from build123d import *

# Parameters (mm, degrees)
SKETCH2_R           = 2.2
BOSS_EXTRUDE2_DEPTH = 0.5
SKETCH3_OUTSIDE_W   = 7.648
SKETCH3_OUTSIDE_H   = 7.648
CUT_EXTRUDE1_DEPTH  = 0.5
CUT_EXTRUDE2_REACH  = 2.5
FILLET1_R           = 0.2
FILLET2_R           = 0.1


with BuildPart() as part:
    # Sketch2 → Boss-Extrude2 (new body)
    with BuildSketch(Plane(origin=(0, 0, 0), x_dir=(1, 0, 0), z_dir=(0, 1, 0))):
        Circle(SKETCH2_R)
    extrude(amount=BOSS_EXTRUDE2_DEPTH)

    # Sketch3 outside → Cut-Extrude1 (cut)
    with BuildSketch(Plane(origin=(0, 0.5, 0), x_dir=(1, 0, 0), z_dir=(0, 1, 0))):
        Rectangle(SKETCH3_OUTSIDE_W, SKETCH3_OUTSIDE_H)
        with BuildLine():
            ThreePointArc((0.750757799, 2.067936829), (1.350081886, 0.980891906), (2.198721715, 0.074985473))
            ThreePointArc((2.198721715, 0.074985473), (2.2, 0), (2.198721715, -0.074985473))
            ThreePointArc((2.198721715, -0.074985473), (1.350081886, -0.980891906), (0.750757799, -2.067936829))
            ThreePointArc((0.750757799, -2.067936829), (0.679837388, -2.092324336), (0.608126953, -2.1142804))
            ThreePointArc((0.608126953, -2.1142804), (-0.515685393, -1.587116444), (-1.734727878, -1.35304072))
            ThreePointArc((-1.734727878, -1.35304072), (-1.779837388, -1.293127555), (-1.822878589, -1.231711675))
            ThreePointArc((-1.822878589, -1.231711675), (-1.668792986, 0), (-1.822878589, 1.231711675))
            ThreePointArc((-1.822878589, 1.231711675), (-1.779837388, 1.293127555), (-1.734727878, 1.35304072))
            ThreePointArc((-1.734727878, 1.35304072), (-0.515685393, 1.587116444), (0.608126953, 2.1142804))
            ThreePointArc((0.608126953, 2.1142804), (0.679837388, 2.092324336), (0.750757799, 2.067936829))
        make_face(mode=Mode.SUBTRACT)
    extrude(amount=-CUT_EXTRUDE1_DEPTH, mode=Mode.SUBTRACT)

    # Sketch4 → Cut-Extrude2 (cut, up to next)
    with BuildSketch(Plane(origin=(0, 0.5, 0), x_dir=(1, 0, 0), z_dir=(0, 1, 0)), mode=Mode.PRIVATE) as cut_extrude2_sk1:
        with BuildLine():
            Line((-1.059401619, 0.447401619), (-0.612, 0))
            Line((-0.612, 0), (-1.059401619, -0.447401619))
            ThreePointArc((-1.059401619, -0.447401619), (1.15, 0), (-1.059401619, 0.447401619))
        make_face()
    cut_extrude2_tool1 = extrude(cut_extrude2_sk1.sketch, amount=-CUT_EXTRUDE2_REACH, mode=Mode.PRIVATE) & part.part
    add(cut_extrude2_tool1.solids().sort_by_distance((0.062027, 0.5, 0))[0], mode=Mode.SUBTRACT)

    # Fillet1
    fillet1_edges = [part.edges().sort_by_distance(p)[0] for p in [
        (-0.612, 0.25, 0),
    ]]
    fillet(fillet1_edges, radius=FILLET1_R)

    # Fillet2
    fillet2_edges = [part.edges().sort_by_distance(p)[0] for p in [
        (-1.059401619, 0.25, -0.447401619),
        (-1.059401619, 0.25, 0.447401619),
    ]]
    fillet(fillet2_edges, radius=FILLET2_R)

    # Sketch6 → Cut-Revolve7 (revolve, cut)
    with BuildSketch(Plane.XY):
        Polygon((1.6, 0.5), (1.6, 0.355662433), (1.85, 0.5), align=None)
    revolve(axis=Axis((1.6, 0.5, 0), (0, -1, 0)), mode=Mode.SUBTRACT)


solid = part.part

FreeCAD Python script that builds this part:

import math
import FreeCAD as App
import Part
import Sketcher
from FreeCAD import Vector
Q = App.Units.Quantity


def edges_at(feature, points):
    """Names of the edges that pass closest to the given points."""
    edges = feature.Shape.Edges
    near = lambda p: min(range(len(edges)), key=lambda i: edges[i].distToShape(Part.Vertex(*p))[0])
    return sorted({f"Edge{near(p) + 1}" for p in points})

doc = App.newDocument("Part")
params = doc.addObject("Spreadsheet::Sheet", "Params")
for row, (alias, value) in enumerate([
    ("sketch1_diameter", "4.4 mm"),
    ("pad1_length", "0.5 mm"),
    ("sketch2_radius", "5 mm"),
    ("sketch2_radius2", "2.2 mm"),
    ("pocket1_length", "0.5 mm"),
    ("sketch3_radius", "1.15 mm"),
    ("fillet_radius", "0.2 mm"),
    ("fillet2_radius", "0.1 mm"),
    ("sketch4_width", "0.25 mm"),
    ("groove_angle", "360 deg"),
], start=1):
    params.set(f"A{row}", alias)
    params.set(f"B{row}", "=" + value)
    params.setAlias(f"B{row}", alias)

body = doc.addObject("PartDesign::Body", "Body")

# Sketch on XZ plane
sketch1 = doc.addObject("Sketcher::SketchObject", "Sketch")
body.addObject(sketch1)
sketch1.AttachmentSupport = (doc.XZ_Plane, [""])
sketch1.MapMode = "FlatFace"
sketch1.addGeometry(Part.Circle(Vector(0, 0, 0), Vector(0, 0, 1), 2.2), False)
sketch1.addConstraint(Sketcher.Constraint("Coincident", 0, 3, -1, 1))
sketch1.addConstraint(Sketcher.Constraint("Diameter", 0, Q("4.4 mm")))
sketch1.setExpression("Constraints[1]", "Params.sketch1_diameter")
pad1 = doc.addObject("PartDesign::Pad", "Pad")
body.addObject(pad1)
pad1.Profile = sketch1
pad1.setExpression("Length", "Params.pad1_length")
pad1.Reversed = True

# Sketch on XZ plane
sketch2 = doc.addObject("Sketcher::SketchObject", "Sketch001")
body.addObject(sketch2)
sketch2.AttachmentSupport = (doc.XZ_Plane, [""])
sketch2.MapMode = "FlatFace"
sketch2.AttachmentOffset = App.Placement(Vector(0, 0, -0.5), App.Rotation())
sketch2.addGeometry(Part.LineSegment(Vector(-3.824, -3.824, 0), Vector(-3.824, 3.824, 0)), False)
sketch2.addGeometry(Part.LineSegment(Vector(-3.824, 3.824, 0), Vector(3.824, 3.824, 0)), False)
sketch2.addGeometry(Part.LineSegment(Vector(3.824, 3.824, 0), Vector(3.824, -3.824, 0)), False)
sketch2.addGeometry(Part.LineSegment(Vector(3.824, -3.824, 0), Vector(-3.824, -3.824, 0)), False)
sketch2.addGeometry(Part.ArcOfCircle(Part.Circle(Vector(0, 0, 0), Vector(0, 0, 1), 2.2), math.radians(-73.953265), math.radians(-70.046735)), False)
sketch2.addGeometry(Part.ArcOfCircle(Part.Circle(Vector(5.395167, -3.919818, 0), Vector(0, 0, 1), 5), math.radians(129.738825), math.radians(158.261175)), False)
sketch2.addGeometry(Part.ArcOfCircle(Part.Circle(Vector(0, 0, 0), Vector(0, 0, 1), 2.2), math.radians(-1.953265), math.radians(1.953265)), False)
sketch2.addGeometry(Part.ArcOfCircle(Part.Circle(Vector(5.395167, 3.919818, 0), Vector(0, 0, 1), 5), math.radians(-158.261175), math.radians(-129.738825)), False)
sketch2.addGeometry(Part.ArcOfCircle(Part.Circle(Vector(0, 0, 0), Vector(0, 0, 1), 2.2), math.radians(70.046735), math.radians(73.953265)), False)
sketch2.addGeometry(Part.ArcOfCircle(Part.Circle(Vector(-2.06077, 6.342399, 0), Vector(0, 0, 1), 5), math.radians(-86.261175), math.radians(-57.738825)), False)
sketch2.addGeometry(Part.ArcOfCircle(Part.Circle(Vector(0, 0, 0), Vector(0, 0, 1), 2.2), math.radians(142.046735), math.radians(145.953265)), False)
sketch2.addGeometry(Part.ArcOfCircle(Part.Circle(Vector(-6.668793, 0, 0), Vector(0, 0, 1), 5), math.radians(-14.261175), math.radians(14.261175)), False)
sketch2.addGeometry(Part.ArcOfCircle(Part.Circle(Vector(0, 0, 0), Vector(0, 0, 1), 2.2), math.radians(-145.953265), math.radians(-142.046735)), False)
sketch2.addGeometry(Part.ArcOfCircle(Part.Circle(Vector(-2.06077, -6.342399, 0), Vector(0, 0, 1), 5), math.radians(57.738825), math.radians(86.261175)), False)
sketch2.addConstraint(Sketcher.Constraint("Coincident", 0, 2, 1, 1))
sketch2.addConstraint(Sketcher.Constraint("Coincident", 1, 2, 2, 1))
sketch2.addConstraint(Sketcher.Constraint("Coincident", 2, 2, 3, 1))
sketch2.addConstraint(Sketcher.Constraint("Coincident", 3, 2, 0, 1))
sketch2.addConstraint(Sketcher.Constraint("Coincident", 4, 2, 5, 2))
sketch2.addConstraint(Sketcher.Constraint("Coincident", 5, 1, 6, 1))
sketch2.addConstraint(Sketcher.Constraint("Coincident", 6, 2, 7, 2))
sketch2.addConstraint(Sketcher.Constraint("Coincident", 7, 1, 8, 1))
sketch2.addConstraint(Sketcher.Constraint("Coincident", 8, 2, 9, 2))
sketch2.addConstraint(Sketcher.Constraint("Coincident", 9, 1, 10, 1))
sketch2.addConstraint(Sketcher.Constraint("Coincident", 10, 2, 11, 2))
sketch2.addConstraint(Sketcher.Constraint("Coincident", 11, 1, 12, 1))
sketch2.addConstraint(Sketcher.Constraint("Coincident", 12, 2, 13, 2))
sketch2.addConstraint(Sketcher.Constraint("Coincident", 13, 1, 4, 1))
sketch2.addConstraint(Sketcher.Constraint("Vertical", 0))
sketch2.addConstraint(Sketcher.Constraint("Horizontal", 1))
sketch2.addConstraint(Sketcher.Constraint("Vertical", 2))
sketch2.addConstraint(Sketcher.Constraint("Horizontal", 3))
sketch2.addConstraint(Sketcher.Constraint("Coincident", 4, 3, -1, 1))
sketch2.addConstraint(Sketcher.Constraint("Coincident", 6, 3, -1, 1))
sketch2.addConstraint(Sketcher.Constraint("Coincident", 8, 3, -1, 1))
sketch2.addConstraint(Sketcher.Constraint("Coincident", 10, 3, -1, 1))
sketch2.addConstraint(Sketcher.Constraint("Coincident", 12, 3, -1, 1))
sketch2.addConstraint(Sketcher.Constraint("Equal", 4, 6))
sketch2.addConstraint(Sketcher.Constraint("Equal", 5, 7))
sketch2.addConstraint(Sketcher.Constraint("Equal", 6, 8))
sketch2.addConstraint(Sketcher.Constraint("Equal", 7, 9))
sketch2.addConstraint(Sketcher.Constraint("Equal", 8, 10))
sketch2.addConstraint(Sketcher.Constraint("Equal", 9, 11))
sketch2.addConstraint(Sketcher.Constraint("Equal", 10, 12))
sketch2.addConstraint(Sketcher.Constraint("Equal", 11, 13))
sketch2.addConstraint(Sketcher.Constraint("Symmetric", 0, 2, 2, 2, -1, 1))
sketch2.addConstraint(Sketcher.Constraint("Symmetric", 5, 3, 7, 3, -1))
sketch2.addConstraint(Sketcher.Constraint("Symmetric", 9, 3, 13, 3, -1))
sketch2.addConstraint(Sketcher.Constraint("PointOnObject", 11, 3, -1))
sketch2.addConstraint(Sketcher.Constraint("Equal", 3, 0))
sketch2.addConstraint(Sketcher.Constraint("Radius", 5, Q("5 mm")))
sketch2.addConstraint(Sketcher.Constraint("Radius", 4, Q("2.2 mm")))
sketch2.addConstraint(Sketcher.Constraint("DistanceX", 1, 1, 1, 2, Q("7.648 mm")))
sketch2.addConstraint(Sketcher.Constraint("DistanceY", -1, 1, 9, 3, Q("6.342399 mm")))
sketch2.addConstraint(Sketcher.Constraint("DistanceY", 5, 3, -1, 1, Q("3.919818 mm")))
sketch2.addConstraint(Sketcher.Constraint("DistanceX", 9, 3, -1, 1, Q("2.06077 mm")))
sketch2.addConstraint(Sketcher.Constraint("DistanceX", -1, 1, 5, 1, Q("2.198722 mm")))
sketch2.addConstraint(Sketcher.Constraint("DistanceX", 10, 2, -1, 1, Q("1.822879 mm")))
sketch2.setExpression("Constraints[36]", "Params.sketch2_radius")
sketch2.setExpression("Constraints[37]", "Params.sketch2_radius2")
pocket1 = doc.addObject("PartDesign::Pocket", "Pocket")
body.addObject(pocket1)
pocket1.Profile = sketch2
pocket1.setExpression("Length", "Params.pocket1_length")
pocket1.Reversed = True

# Sketch on XZ plane
sketch3 = doc.addObject("Sketcher::SketchObject", "Sketch002")
body.addObject(sketch3)
sketch3.AttachmentSupport = (doc.XZ_Plane, [""])
sketch3.MapMode = "FlatFace"
sketch3.AttachmentOffset = App.Placement(Vector(0, 0, -0.5), App.Rotation())
sketch3.addGeometry(Part.LineSegment(Vector(-1.059402, -0.447402, 0), Vector(-0.612, 0, 0)), False)
sketch3.addGeometry(Part.LineSegment(Vector(-0.612, 0, 0), Vector(-1.059402, 0.447402, 0)), False)
sketch3.addGeometry(Part.ArcOfCircle(Part.Circle(Vector(0, 0, 0), Vector(0, 0, 1), 1.15), math.radians(-157.104918), math.radians(157.104918)), False)
sketch3.addConstraint(Sketcher.Constraint("Coincident", 0, 2, 1, 1))
sketch3.addConstraint(Sketcher.Constraint("Coincident", 1, 2, 2, 2))
sketch3.addConstraint(Sketcher.Constraint("Coincident", 2, 1, 0, 1))
sketch3.addConstraint(Sketcher.Constraint("Coincident", 2, 3, -1, 1))
sketch3.addConstraint(Sketcher.Constraint("PointOnObject", 0, 2, -1))
sketch3.addConstraint(Sketcher.Constraint("Perpendicular", 0, 1))
sketch3.addConstraint(Sketcher.Constraint("Vertical", 1, 2, 2, 1))
sketch3.addConstraint(Sketcher.Constraint("Radius", 2, Q("1.15 mm")))
sketch3.addConstraint(Sketcher.Constraint("DistanceX", 0, 2, -1, 1, Q("0.612 mm")))
sketch3.setExpression("Constraints[7]", "Params.sketch3_radius")
pocket2 = doc.addObject("PartDesign::Pocket", "Pocket001")
body.addObject(pocket2)
pocket2.Profile = sketch3
pocket2.Type = "UpToFirst"
pocket2.Reversed = True
doc.recompute()

fillet = doc.addObject("PartDesign::Fillet", "Fillet")
body.addObject(fillet)
fillet.Base = (pocket2, edges_at(pocket2, [(-0.612, 0.25, 0)]))
fillet.setExpression("Radius", "Params.fillet_radius")
doc.recompute()

fillet2 = doc.addObject("PartDesign::Fillet", "Fillet001")
body.addObject(fillet2)
fillet2.Base = (fillet, edges_at(fillet, [(-1.059, 0.25, -0.447), (-1.059, 0.25, 0.447)]))
fillet2.setExpression("Radius", "Params.fillet2_radius")

# Sketch on XY plane
sketch4 = doc.addObject("Sketcher::SketchObject", "Sketch003")
body.addObject(sketch4)
sketch4.AttachmentSupport = (doc.XY_Plane, [""])
sketch4.MapMode = "FlatFace"
sketch4.addGeometry(Part.LineSegment(Vector(1.6, 0.5, 0), Vector(1.6, 0.355662, 0)), False)
sketch4.addGeometry(Part.LineSegment(Vector(1.6, 0.355662, 0), Vector(1.85, 0.5, 0)), False)
sketch4.addGeometry(Part.LineSegment(Vector(1.85, 0.5, 0), Vector(1.6, 0.5, 0)), False)
sketch4.addGeometry(Part.LineSegment(Vector(1.6, 0.5, 0), Vector(1.6, 0.355662, 0)), True)  # axis
sketch4.addConstraint(Sketcher.Constraint("Coincident", 0, 2, 1, 1))
sketch4.addConstraint(Sketcher.Constraint("Coincident", 1, 2, 2, 1))
sketch4.addConstraint(Sketcher.Constraint("Coincident", 2, 2, 0, 1))
sketch4.addConstraint(Sketcher.Constraint("Vertical", 0))
sketch4.addConstraint(Sketcher.Constraint("Horizontal", 2))
sketch4.addConstraint(Sketcher.Constraint("Vertical", 3))
sketch4.addConstraint(Sketcher.Constraint("Coincident", 3, 1, 2, 2))
sketch4.addConstraint(Sketcher.Constraint("Equal", 0, 3))
sketch4.addConstraint(Sketcher.Constraint("Angle", 1, Q("30 deg")))
sketch4.addConstraint(Sketcher.Constraint("DistanceX", 2, 2, 2, 1, Q("0.25 mm")))
sketch4.addConstraint(Sketcher.Constraint("DistanceX", -1, 1, 0, 2, Q("1.6 mm")))
sketch4.addConstraint(Sketcher.Constraint("DistanceY", -1, 1, 1, 2, Q("0.5 mm")))
sketch4.setExpression("Constraints[9]", "Params.sketch4_width")
groove = doc.addObject("PartDesign::Groove", "Groove")
body.addObject(groove)
groove.Profile = sketch4
groove.ReferenceAxis = (sketch4, ["Axis0"])
groove.setExpression("Angle", "Params.groove_angle")

doc.recompute()
